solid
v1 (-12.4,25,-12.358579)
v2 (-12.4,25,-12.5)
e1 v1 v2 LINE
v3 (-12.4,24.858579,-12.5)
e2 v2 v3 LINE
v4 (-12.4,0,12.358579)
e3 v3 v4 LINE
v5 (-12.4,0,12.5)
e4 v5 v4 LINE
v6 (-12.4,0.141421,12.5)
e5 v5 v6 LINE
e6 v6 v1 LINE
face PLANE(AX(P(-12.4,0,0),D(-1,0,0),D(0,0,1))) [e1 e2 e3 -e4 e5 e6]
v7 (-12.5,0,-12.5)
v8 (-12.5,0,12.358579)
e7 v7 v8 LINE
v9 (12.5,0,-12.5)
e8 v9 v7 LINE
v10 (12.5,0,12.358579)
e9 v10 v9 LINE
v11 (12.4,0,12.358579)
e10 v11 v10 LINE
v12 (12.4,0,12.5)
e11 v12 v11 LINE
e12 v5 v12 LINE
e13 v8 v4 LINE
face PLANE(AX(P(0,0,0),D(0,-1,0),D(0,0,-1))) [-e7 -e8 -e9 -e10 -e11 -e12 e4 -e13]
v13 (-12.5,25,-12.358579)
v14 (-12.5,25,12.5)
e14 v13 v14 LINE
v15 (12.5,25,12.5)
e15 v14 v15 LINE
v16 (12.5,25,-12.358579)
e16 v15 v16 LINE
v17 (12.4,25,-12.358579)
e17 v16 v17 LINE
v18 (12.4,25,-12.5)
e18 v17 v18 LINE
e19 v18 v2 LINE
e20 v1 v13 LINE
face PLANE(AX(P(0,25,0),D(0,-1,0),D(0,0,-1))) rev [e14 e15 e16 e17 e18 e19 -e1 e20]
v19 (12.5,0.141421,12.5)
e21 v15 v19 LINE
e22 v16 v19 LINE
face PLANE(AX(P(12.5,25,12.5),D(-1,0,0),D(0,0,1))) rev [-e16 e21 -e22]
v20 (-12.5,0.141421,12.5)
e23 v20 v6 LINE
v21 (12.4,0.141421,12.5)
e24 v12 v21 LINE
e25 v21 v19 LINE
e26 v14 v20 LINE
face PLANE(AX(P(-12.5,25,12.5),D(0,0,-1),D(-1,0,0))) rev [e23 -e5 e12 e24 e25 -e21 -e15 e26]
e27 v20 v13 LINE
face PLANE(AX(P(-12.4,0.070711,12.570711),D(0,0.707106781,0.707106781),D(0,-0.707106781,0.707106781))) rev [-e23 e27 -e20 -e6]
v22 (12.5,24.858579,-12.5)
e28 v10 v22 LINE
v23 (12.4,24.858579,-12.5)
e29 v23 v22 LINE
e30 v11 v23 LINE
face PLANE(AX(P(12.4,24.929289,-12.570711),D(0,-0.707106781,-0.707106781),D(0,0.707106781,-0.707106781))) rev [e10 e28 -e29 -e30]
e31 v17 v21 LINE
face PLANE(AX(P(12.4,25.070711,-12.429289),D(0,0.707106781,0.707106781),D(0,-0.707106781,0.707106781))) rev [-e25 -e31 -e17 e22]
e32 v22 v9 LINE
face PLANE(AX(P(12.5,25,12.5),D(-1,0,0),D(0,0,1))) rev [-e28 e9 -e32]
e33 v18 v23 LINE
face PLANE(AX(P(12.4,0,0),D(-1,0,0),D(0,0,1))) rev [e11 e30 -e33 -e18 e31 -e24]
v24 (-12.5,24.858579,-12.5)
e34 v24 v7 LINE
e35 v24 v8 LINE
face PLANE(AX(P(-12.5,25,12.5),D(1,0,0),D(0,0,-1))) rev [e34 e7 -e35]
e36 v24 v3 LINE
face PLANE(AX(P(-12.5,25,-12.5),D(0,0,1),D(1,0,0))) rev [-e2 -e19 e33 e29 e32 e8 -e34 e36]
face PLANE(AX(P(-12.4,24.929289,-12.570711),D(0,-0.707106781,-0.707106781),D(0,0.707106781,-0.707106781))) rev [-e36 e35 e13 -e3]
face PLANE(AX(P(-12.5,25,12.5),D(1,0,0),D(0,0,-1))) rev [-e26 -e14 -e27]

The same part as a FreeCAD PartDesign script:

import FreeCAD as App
import Part
import Sketcher
from FreeCAD import Vector
Q = App.Units.Quantity

doc = App.newDocument("Part")
body = doc.addObject("PartDesign::Body", "Body")

# Sketch on XZ plane
sketch1 = body.newObject("Sketcher::SketchObject", "Sketch")
sketch1.AttachmentSupport = (doc.getObject("XZ_Plane"), [""])
sketch1.MapMode = "FlatFace"
sketch1.addGeometry([
    Part.LineSegment(Vector(-12.5, -12.5, 0), Vector(-12.5, 12.5, 0)),
    Part.LineSegment(Vector(-12.5, 12.5, 0), Vector(12.5, 12.5, 0)),
    Part.LineSegment(Vector(12.5, 12.5, 0), Vector(12.5, -12.5, 0)),
    Part.LineSegment(Vector(12.5, -12.5, 0), Vector(-12.5, -12.5, 0)),
], False)
sketch1.addConstraint([
    Sketcher.Constraint("Coincident", 0, 2, 1, 1),
    Sketcher.Constraint("Coincident", 1, 2, 2, 1),
    Sketcher.Constraint("Coincident", 2, 2, 3, 1),
    Sketcher.Constraint("Coincident", 3, 2, 0, 1),
    Sketcher.Constraint("Vertical", 0),
    Sketcher.Constraint("Horizontal", 1),
    Sketcher.Constraint("Vertical", 2),
    Sketcher.Constraint("Horizontal", 3),
    Sketcher.Constraint("Symmetric", 0, 2, 2, 2, -1, 1),
    Sketcher.Constraint("Equal", 3, 0),
    Sketcher.Constraint("DistanceX", 1, 1, 1, 2, Q("25 mm")),
])
pad1 = body.newObject("PartDesign::Pad", "Pad")
pad1.Profile = sketch1
pad1.Length = 25
pad1.Reversed = True

# Sketch on YZ plane
sketch2 = body.newObject("Sketcher::SketchObject", "Sketch001")
sketch2.AttachmentSupport = (doc.getObject("YZ_Plane"), [""])
sketch2.MapMode = "FlatFace"
sketch2.AttachmentOffset = App.Placement(Vector(0, 0, 12.5), App.Rotation())
sketch2.addGeometry([
    Part.LineSegment(Vector(25.070711, -12.429289, 0), Vector(0.070711, 12.570711, 0)),
    Part.LineSegment(Vector(0.070711, 12.570711, 0), Vector(-0.070711, 12.429289, 0)),
    Part.LineSegment(Vector(-0.070711, 12.429289, 0), Vector(24.929289, -12.570711, 0)),
    Part.LineSegment(Vector(24.929289, -12.570711, 0), Vector(25.070711, -12.429289, 0)),
], False)
sketch2.addConstraint([
    Sketcher.Constraint("Coincident", 0, 2, 1, 1),
    Sketcher.Constraint("Coincident", 1, 2, 2, 1),
    Sketcher.Constraint("Coincident", 2, 2, 3, 1),
    Sketcher.Constraint("Coincident", 3, 2, 0, 1),
    Sketcher.Constraint("Perpendicular", 0, 1),
    Sketcher.Constraint("Perpendicular", 1, 2),
    Sketcher.Constraint("Perpendicular", 2, 3),
    Sketcher.Constraint("Angle", 0, Q("135 deg")),
    Sketcher.Constraint("DistanceX", 1, 2, 2, 2, Q("25 mm")),
    Sketcher.Constraint("Distance", 1, Q("0.2 mm")),
    Sketcher.Constraint("DistanceX", -1, 1, 0, 2, Q("0.070711 mm")),
    Sketcher.Constraint("DistanceY", -1, 1, 0, 2, Q("12.570711 mm")),
])
pocket1 = body.newObject("PartDesign::Pocket", "Pocket")
pocket1.Profile = sketch2
pocket1.Length = 0.1

# Sketch on YZ plane
sketch3 = body.newObject("Sketcher::SketchObject", "Sketch002")
sketch3.AttachmentSupport = (doc.getObject("YZ_Plane"), [""])
sketch3.MapMode = "FlatFace"
sketch3.AttachmentOffset = App.Placement(Vector(0, 0, -12.5), App.Rotation())
sketch3.addGeometry([
    Part.LineSegment(Vector(0.070711, 12.570711, 0), Vector(25.070711, -12.429289, 0)),
    Part.LineSegment(Vector(25.070711, -12.429289, 0), Vector(24.929289, -12.570711, 0)),
    Part.LineSegment(Vector(24.929289, -12.570711, 0), Vector(-0.070711, 12.429289, 0)),
    Part.LineSegment(Vector(-0.070711, 12.429289, 0), Vector(0.070711, 12.570711, 0)),
], False)
sketch3.addConstraint([
    Sketcher.Constraint("Coincident", 0, 2, 1, 1),
    Sketcher.Constraint("Coincident", 1, 2, 2, 1),
    Sketcher.Constraint("Coincident", 2, 2, 3, 1),
    Sketcher.Constraint("Coincident", 3, 2, 0, 1),
    Sketcher.Constraint("Perpendicular", 0, 1),
    Sketcher.Constraint("Perpendicular", 1, 2),
    Sketcher.Constraint("Perpendicular", 2, 3),
    Sketcher.Constraint("Angle", 0, Q("-45 deg")),
    Sketcher.Constraint("DistanceX", 2, 2, 1, 2, Q("25 mm")),
    Sketcher.Constraint("Distance", 1, Q("0.2 mm")),
    Sketcher.Constraint("DistanceX", -1, 1, 0, 2, Q("25.070711 mm")),
    Sketcher.Constraint("DistanceY", 0, 2, -1, 1, Q("12.429289 mm")),
])
pocket2 = body.newObject("PartDesign::Pocket", "Pocket001")
pocket2.Profile = sketch3
pocket2.Length = 0.1
pocket2.Reversed = True

doc.recompute()
